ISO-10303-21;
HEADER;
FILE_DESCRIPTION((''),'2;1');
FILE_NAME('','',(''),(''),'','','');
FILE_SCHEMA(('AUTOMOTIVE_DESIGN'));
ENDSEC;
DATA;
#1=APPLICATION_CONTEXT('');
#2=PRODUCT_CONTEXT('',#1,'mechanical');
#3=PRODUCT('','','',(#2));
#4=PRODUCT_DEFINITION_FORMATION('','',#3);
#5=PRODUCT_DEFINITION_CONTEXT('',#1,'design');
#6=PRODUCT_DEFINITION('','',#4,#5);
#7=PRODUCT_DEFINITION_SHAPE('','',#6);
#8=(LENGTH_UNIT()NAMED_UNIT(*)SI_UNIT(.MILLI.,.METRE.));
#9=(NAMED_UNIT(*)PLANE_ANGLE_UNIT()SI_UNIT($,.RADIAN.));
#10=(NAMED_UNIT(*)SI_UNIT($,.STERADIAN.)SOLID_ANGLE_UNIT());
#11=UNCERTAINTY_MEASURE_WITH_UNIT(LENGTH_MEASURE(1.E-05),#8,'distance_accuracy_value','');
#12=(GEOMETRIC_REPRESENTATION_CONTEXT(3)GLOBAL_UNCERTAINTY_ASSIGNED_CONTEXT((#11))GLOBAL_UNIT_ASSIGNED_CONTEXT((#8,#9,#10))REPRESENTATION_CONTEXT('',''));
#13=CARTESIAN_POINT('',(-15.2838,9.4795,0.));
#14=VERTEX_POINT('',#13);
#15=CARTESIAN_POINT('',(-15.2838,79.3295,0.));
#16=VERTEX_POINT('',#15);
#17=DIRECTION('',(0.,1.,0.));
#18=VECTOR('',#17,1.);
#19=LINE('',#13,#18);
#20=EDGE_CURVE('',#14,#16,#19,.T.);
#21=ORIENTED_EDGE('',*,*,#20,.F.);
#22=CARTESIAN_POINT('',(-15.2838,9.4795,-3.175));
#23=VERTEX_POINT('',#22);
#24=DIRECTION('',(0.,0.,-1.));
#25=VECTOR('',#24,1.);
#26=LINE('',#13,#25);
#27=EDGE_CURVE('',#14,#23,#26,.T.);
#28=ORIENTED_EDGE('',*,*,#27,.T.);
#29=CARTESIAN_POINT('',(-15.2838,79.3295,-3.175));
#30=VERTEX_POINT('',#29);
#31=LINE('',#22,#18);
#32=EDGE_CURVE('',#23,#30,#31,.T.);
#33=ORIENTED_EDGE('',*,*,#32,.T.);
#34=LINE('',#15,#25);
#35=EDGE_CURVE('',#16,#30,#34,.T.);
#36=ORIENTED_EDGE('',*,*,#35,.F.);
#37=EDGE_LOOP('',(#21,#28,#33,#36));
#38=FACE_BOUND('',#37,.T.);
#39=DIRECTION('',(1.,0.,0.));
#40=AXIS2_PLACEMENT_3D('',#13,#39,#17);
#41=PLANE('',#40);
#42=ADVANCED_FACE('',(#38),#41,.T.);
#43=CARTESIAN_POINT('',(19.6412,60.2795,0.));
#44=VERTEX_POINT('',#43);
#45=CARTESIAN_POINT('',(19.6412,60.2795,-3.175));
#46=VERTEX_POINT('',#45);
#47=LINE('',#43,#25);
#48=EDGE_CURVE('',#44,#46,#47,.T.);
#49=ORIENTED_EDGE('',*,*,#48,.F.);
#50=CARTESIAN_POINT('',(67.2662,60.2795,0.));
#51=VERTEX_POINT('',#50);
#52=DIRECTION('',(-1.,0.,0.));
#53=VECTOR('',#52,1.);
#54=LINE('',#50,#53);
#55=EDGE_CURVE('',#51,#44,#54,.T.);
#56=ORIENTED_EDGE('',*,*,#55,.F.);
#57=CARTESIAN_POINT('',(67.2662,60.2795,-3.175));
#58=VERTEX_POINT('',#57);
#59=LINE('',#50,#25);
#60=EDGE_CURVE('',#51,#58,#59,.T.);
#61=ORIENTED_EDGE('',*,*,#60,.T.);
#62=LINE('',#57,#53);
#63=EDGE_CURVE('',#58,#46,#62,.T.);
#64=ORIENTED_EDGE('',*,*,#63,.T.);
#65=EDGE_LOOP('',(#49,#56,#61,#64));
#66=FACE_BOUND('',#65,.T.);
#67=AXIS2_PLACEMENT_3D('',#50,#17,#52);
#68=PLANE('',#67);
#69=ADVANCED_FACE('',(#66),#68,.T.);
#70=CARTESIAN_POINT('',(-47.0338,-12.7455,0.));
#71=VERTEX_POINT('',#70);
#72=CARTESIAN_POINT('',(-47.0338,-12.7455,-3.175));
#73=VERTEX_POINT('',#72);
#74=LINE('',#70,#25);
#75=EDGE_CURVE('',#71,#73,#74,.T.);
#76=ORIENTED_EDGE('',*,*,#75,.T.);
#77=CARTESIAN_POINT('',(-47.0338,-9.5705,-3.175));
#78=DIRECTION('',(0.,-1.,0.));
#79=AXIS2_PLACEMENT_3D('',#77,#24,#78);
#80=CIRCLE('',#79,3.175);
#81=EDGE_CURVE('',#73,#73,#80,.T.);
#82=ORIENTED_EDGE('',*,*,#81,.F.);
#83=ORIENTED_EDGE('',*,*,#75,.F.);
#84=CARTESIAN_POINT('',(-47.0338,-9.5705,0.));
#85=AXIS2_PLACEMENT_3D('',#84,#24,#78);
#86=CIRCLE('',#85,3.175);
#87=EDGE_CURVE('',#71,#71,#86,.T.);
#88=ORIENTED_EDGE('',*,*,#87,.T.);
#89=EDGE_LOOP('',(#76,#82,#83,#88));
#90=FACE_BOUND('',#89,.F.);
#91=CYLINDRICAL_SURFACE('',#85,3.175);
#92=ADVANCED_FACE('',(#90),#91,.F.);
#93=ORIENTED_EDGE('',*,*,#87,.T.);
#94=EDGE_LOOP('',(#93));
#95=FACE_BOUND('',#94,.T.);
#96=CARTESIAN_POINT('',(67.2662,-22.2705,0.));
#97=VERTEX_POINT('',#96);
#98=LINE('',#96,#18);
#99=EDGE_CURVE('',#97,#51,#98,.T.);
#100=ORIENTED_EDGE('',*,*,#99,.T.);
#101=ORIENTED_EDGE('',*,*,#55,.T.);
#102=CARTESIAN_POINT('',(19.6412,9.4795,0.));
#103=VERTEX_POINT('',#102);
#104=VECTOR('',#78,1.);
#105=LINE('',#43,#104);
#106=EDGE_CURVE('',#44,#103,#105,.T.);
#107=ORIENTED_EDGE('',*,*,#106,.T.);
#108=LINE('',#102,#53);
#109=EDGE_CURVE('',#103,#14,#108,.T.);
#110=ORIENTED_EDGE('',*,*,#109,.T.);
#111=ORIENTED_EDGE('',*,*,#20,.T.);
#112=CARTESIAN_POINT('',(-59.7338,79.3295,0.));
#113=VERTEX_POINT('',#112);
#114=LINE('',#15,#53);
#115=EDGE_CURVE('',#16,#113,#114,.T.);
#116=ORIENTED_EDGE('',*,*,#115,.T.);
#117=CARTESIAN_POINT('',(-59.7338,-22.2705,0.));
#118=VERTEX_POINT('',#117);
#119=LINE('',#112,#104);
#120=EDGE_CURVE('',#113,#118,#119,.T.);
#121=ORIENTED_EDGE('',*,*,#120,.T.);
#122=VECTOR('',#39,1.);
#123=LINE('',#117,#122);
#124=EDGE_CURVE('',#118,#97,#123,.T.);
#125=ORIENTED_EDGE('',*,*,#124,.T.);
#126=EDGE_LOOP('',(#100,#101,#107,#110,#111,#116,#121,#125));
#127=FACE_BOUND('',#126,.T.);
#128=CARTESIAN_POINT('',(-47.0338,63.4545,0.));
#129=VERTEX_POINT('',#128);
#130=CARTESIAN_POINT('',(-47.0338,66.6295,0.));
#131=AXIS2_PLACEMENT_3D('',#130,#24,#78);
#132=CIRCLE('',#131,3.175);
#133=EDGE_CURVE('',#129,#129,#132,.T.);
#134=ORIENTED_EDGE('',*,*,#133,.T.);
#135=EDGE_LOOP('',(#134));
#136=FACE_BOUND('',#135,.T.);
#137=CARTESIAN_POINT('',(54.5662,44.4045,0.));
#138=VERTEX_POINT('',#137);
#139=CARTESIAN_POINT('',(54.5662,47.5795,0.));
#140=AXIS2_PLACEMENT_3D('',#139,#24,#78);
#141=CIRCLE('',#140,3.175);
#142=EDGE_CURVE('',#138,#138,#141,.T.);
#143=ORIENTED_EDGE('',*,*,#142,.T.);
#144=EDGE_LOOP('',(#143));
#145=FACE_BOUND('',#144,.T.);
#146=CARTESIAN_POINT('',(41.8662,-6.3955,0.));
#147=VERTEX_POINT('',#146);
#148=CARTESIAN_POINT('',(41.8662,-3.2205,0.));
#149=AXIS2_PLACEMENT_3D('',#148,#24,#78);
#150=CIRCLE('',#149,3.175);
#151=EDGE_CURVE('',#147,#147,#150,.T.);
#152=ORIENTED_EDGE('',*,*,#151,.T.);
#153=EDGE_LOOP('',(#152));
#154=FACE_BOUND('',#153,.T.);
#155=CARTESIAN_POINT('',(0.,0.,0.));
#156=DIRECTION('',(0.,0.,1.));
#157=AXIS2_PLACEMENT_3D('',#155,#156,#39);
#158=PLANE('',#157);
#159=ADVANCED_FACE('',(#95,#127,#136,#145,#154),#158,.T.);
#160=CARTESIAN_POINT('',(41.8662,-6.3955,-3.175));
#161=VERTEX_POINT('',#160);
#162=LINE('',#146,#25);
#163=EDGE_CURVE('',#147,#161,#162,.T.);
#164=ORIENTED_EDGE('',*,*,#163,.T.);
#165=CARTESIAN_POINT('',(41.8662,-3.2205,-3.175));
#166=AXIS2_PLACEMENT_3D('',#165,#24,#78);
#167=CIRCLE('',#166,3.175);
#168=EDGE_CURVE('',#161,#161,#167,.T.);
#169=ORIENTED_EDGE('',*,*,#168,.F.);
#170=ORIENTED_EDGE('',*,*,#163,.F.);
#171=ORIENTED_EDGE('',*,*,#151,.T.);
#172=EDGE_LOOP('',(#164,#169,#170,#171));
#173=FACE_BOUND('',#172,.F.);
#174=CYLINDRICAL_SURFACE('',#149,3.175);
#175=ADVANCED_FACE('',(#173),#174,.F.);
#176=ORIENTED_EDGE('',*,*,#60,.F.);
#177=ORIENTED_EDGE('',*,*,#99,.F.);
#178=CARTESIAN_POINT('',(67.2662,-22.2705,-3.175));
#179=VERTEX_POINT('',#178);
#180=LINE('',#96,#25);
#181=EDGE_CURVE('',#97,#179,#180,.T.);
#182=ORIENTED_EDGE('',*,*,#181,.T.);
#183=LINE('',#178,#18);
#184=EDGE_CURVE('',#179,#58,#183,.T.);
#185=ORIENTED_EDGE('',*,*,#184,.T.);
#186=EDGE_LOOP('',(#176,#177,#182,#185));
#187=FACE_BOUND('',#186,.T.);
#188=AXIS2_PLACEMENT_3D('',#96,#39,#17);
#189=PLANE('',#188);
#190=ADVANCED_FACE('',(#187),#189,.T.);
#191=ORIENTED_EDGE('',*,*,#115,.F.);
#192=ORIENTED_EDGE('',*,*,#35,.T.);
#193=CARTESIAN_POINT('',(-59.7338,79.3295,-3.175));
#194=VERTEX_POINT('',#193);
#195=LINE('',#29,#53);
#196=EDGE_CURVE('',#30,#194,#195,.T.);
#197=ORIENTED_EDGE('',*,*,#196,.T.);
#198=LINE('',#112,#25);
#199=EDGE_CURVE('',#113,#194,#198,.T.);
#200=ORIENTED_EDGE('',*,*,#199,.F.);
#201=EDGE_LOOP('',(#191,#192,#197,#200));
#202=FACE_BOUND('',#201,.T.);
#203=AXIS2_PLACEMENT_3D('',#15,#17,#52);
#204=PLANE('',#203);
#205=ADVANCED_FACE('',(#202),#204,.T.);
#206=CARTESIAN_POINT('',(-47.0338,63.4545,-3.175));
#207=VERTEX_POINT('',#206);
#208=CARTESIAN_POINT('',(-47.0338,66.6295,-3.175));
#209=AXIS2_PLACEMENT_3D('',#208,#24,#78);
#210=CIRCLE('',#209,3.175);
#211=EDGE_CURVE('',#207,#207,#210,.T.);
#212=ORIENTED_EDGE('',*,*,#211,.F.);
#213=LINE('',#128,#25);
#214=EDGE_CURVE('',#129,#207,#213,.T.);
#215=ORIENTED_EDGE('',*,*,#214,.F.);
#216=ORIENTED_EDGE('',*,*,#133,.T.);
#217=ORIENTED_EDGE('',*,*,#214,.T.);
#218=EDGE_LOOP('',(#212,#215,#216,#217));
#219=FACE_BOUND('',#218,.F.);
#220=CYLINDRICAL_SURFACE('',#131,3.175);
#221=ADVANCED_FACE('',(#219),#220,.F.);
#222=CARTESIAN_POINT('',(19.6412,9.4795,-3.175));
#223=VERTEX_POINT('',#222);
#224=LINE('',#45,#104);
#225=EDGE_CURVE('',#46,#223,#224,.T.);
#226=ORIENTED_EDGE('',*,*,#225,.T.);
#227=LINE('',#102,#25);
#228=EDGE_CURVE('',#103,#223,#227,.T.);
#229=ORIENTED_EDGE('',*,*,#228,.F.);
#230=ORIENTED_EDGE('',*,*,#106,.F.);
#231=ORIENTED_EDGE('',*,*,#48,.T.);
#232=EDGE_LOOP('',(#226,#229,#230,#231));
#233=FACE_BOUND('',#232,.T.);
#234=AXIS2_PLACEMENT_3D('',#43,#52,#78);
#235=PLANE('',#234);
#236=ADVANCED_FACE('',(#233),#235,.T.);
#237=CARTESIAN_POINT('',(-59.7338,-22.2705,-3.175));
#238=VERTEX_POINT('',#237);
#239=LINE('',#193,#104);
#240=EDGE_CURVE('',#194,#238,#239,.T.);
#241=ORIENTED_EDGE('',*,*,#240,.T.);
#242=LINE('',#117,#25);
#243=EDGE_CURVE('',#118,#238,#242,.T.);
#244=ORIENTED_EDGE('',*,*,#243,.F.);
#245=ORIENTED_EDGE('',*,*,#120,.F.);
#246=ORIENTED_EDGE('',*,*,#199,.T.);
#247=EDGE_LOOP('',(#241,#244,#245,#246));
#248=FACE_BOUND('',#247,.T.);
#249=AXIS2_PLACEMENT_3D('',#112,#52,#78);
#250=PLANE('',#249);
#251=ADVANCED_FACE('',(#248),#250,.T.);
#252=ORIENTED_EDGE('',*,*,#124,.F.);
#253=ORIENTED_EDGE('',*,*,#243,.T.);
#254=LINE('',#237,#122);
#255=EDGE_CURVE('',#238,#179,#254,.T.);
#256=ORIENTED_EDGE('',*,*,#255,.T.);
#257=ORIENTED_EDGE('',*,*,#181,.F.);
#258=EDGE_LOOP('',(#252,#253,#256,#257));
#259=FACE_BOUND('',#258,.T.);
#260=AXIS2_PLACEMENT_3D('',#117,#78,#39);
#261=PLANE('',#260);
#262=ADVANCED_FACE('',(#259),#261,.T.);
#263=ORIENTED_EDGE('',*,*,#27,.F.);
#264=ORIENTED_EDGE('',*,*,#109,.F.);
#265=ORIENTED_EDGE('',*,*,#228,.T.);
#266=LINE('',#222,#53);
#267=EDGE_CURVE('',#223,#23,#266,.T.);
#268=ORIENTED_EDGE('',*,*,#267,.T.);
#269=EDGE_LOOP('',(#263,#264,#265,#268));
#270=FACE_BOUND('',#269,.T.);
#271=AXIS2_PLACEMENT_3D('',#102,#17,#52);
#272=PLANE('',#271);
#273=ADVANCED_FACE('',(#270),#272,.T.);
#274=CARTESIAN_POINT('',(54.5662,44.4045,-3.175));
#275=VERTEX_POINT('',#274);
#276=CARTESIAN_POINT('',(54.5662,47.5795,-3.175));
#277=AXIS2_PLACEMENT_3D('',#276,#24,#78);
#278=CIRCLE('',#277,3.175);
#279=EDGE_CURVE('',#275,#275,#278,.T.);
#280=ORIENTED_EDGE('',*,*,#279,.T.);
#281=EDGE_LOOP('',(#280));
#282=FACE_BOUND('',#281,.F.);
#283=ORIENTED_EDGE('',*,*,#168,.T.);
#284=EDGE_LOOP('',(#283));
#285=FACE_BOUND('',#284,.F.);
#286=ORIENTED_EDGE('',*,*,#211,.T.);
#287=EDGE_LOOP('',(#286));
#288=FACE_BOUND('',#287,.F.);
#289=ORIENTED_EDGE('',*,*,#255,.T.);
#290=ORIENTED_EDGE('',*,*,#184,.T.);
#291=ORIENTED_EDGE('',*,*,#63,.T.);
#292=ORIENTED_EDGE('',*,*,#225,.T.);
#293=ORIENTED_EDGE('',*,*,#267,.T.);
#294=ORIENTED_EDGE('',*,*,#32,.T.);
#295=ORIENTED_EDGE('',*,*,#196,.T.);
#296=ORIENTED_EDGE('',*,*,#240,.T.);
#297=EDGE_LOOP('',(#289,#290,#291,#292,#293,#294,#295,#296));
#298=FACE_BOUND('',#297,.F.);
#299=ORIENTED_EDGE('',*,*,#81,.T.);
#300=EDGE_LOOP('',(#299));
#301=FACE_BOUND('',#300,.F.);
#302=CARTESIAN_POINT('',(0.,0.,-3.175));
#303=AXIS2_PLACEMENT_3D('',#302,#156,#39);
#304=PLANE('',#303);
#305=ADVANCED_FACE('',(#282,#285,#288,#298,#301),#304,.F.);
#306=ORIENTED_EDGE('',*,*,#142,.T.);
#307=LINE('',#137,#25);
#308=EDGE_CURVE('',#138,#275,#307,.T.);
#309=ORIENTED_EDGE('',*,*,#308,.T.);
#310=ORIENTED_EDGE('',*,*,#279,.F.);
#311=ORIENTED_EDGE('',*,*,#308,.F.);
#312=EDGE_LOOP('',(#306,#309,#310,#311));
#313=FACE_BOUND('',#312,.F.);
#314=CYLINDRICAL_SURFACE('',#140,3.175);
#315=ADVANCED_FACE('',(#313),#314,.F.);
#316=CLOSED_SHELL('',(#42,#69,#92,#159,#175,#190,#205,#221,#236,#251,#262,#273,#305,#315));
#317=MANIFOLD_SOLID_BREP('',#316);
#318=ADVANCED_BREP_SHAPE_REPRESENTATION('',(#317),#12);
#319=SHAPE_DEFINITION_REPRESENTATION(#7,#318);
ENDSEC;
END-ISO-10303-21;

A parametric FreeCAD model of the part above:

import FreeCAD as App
import Part
import Sketcher
from FreeCAD import Vector
Q = App.Units.Quantity


def add_polygon(sketch, points):
    """Adds a closed chain of lines whose ends are joined by coincident constraints."""
    first, n = sketch.GeometryCount, len(points)
    for a, b in zip(points, points[1:] + points[:1]):
        sketch.addGeometry(Part.LineSegment(App.Vector(*a, 0), App.Vector(*b, 0)), False)
    for i in range(n):
        sketch.addConstraint(Sketcher.Constraint("Coincident", first + i, 2, first + (i + 1) % n, 1))

doc = App.newDocument("Part")
body = doc.addObject("PartDesign::Body", "Body")

sketch1 = body.newObject("Sketcher::SketchObject", "Sketch")
sketch1.AttachmentSupport = (doc.getObject("XY_Plane"), [""])
sketch1.MapMode = "FlatFace"
add_polygon(sketch1, [(-15.2838, 79.3295), (-59.7338, 79.3295), (-59.7338, -22.2705), (67.2662, -22.2705), (67.2662, 60.2795), (19.6412, 60.2795), (19.6412, 9.4795), (-15.2838, 9.4795)])
sketch1.addConstraint([
    Sketcher.Constraint("Horizontal", 0),
    Sketcher.Constraint("Vertical", 1),
    Sketcher.Constraint("Horizontal", 2),
    Sketcher.Constraint("Vertical", 3),
    Sketcher.Constraint("Horizontal", 4),
    Sketcher.Constraint("Vertical", 5),
    Sketcher.Constraint("Horizontal", 6),
    Sketcher.Constraint("Vertical", 7),
    Sketcher.Constraint("DistanceX", 2, 1, 2, 2, Q("5 in")),
    Sketcher.Constraint("DistanceY", 1, 2, 1, 1, Q("4 in")),
    Sketcher.Constraint("DistanceX", 0, 2, 0, 1, Q("1.75 in")),
    Sketcher.Constraint("DistanceY", 3, 1, 3, 2, Q("3.25 in")),
    Sketcher.Constraint("DistanceY", 7, 1, 7, 2, Q("2.75 in")),
    Sketcher.Constraint("DistanceX", 4, 2, 4, 1, Q("1.875 in")),
    Sketcher.Constraint("DistanceY", -1, 1, 0, 2, Q("3.1232 in")),
    Sketcher.Constraint("DistanceX", 0, 2, -1, 1, 59.7338),
])
pad1 = body.newObject("PartDesign::Pad", "Pad")
pad1.Profile = sketch1
pad1.Length = Q("0.125 in")
pad1.Reversed = True

sketch2 = body.newObject("Sketcher::SketchObject", "Sketch001")
sketch2.AttachmentSupport = (doc.getObject("XY_Plane"), [""])
sketch2.MapMode = "FlatFace"
sketch2.addGeometry([
    Part.Circle(Vector(-47.0338, 66.6295, 0), Vector(0, 0, 1), 3.175),
    Part.Circle(Vector(54.5662, 47.5795, 0), Vector(0, 0, 1), 3.175),
    Part.Circle(Vector(41.8662, -3.2205, 0), Vector(0, 0, 1), 3.175),
], False)
sketch2.addConstraint([
    Sketcher.Constraint("Equal", 0, 1),
    Sketcher.Constraint("Equal", 1, 2),
    Sketcher.Constraint("Diameter", 0, Q("0.25 in")),
    Sketcher.Constraint("DistanceX", 0, 3, 1, 3, Q("4 in")),
    Sketcher.Constraint("DistanceY", 2, 3, 1, 3, Q("2 in")),
    Sketcher.Constraint("DistanceX", 2, 3, 1, 3, Q("0.5 in")),
    Sketcher.Constraint("DistanceY", 1, 3, 0, 3, Q("0.75 in")),
    Sketcher.Constraint("DistanceY", -1, 1, 0, 3, Q("2.6232 in")),
    Sketcher.Constraint("DistanceX", 0, 3, -1, 1, 47.0338),
])
doc.recompute()
hole = body.newObject("PartDesign::Hole", "Hole")
hole.Profile = sketch2
hole.ThreadType = "None"
hole.Diameter = Q("0.25 in")
hole.DepthType = "Dimension"
hole.Depth = Q("1 in")
hole.DrillPoint = "Angled"
hole.DrillPointAngle = 118

sketch3 = body.newObject("Sketcher::SketchObject", "Sketch002")
sketch3.AttachmentSupport = (doc.getObject("XY_Plane"), [""])
sketch3.MapMode = "FlatFace"
sketch3.addGeometry(Part.Circle(Vector(-47.0338, -9.5705, 0), Vector(0, 0, 1), 3.175), False)
sketch3.addConstraint([
    Sketcher.Constraint("Diameter", 0, Q("0.25 in")),
    Sketcher.Constraint("DistanceY", 0, 3, -1, 1, Q("0.3768 in")),
    Sketcher.Constraint("DistanceX", 0, 3, -1, 1, 47.0338),
])
doc.recompute()
hole2 = body.newObject("PartDesign::Hole", "Hole001")
hole2.Profile = sketch3
hole2.ThreadType = "None"
hole2.Diameter = Q("0.25 in")
hole2.DepthType = "ThroughAll"

doc.recompute()
